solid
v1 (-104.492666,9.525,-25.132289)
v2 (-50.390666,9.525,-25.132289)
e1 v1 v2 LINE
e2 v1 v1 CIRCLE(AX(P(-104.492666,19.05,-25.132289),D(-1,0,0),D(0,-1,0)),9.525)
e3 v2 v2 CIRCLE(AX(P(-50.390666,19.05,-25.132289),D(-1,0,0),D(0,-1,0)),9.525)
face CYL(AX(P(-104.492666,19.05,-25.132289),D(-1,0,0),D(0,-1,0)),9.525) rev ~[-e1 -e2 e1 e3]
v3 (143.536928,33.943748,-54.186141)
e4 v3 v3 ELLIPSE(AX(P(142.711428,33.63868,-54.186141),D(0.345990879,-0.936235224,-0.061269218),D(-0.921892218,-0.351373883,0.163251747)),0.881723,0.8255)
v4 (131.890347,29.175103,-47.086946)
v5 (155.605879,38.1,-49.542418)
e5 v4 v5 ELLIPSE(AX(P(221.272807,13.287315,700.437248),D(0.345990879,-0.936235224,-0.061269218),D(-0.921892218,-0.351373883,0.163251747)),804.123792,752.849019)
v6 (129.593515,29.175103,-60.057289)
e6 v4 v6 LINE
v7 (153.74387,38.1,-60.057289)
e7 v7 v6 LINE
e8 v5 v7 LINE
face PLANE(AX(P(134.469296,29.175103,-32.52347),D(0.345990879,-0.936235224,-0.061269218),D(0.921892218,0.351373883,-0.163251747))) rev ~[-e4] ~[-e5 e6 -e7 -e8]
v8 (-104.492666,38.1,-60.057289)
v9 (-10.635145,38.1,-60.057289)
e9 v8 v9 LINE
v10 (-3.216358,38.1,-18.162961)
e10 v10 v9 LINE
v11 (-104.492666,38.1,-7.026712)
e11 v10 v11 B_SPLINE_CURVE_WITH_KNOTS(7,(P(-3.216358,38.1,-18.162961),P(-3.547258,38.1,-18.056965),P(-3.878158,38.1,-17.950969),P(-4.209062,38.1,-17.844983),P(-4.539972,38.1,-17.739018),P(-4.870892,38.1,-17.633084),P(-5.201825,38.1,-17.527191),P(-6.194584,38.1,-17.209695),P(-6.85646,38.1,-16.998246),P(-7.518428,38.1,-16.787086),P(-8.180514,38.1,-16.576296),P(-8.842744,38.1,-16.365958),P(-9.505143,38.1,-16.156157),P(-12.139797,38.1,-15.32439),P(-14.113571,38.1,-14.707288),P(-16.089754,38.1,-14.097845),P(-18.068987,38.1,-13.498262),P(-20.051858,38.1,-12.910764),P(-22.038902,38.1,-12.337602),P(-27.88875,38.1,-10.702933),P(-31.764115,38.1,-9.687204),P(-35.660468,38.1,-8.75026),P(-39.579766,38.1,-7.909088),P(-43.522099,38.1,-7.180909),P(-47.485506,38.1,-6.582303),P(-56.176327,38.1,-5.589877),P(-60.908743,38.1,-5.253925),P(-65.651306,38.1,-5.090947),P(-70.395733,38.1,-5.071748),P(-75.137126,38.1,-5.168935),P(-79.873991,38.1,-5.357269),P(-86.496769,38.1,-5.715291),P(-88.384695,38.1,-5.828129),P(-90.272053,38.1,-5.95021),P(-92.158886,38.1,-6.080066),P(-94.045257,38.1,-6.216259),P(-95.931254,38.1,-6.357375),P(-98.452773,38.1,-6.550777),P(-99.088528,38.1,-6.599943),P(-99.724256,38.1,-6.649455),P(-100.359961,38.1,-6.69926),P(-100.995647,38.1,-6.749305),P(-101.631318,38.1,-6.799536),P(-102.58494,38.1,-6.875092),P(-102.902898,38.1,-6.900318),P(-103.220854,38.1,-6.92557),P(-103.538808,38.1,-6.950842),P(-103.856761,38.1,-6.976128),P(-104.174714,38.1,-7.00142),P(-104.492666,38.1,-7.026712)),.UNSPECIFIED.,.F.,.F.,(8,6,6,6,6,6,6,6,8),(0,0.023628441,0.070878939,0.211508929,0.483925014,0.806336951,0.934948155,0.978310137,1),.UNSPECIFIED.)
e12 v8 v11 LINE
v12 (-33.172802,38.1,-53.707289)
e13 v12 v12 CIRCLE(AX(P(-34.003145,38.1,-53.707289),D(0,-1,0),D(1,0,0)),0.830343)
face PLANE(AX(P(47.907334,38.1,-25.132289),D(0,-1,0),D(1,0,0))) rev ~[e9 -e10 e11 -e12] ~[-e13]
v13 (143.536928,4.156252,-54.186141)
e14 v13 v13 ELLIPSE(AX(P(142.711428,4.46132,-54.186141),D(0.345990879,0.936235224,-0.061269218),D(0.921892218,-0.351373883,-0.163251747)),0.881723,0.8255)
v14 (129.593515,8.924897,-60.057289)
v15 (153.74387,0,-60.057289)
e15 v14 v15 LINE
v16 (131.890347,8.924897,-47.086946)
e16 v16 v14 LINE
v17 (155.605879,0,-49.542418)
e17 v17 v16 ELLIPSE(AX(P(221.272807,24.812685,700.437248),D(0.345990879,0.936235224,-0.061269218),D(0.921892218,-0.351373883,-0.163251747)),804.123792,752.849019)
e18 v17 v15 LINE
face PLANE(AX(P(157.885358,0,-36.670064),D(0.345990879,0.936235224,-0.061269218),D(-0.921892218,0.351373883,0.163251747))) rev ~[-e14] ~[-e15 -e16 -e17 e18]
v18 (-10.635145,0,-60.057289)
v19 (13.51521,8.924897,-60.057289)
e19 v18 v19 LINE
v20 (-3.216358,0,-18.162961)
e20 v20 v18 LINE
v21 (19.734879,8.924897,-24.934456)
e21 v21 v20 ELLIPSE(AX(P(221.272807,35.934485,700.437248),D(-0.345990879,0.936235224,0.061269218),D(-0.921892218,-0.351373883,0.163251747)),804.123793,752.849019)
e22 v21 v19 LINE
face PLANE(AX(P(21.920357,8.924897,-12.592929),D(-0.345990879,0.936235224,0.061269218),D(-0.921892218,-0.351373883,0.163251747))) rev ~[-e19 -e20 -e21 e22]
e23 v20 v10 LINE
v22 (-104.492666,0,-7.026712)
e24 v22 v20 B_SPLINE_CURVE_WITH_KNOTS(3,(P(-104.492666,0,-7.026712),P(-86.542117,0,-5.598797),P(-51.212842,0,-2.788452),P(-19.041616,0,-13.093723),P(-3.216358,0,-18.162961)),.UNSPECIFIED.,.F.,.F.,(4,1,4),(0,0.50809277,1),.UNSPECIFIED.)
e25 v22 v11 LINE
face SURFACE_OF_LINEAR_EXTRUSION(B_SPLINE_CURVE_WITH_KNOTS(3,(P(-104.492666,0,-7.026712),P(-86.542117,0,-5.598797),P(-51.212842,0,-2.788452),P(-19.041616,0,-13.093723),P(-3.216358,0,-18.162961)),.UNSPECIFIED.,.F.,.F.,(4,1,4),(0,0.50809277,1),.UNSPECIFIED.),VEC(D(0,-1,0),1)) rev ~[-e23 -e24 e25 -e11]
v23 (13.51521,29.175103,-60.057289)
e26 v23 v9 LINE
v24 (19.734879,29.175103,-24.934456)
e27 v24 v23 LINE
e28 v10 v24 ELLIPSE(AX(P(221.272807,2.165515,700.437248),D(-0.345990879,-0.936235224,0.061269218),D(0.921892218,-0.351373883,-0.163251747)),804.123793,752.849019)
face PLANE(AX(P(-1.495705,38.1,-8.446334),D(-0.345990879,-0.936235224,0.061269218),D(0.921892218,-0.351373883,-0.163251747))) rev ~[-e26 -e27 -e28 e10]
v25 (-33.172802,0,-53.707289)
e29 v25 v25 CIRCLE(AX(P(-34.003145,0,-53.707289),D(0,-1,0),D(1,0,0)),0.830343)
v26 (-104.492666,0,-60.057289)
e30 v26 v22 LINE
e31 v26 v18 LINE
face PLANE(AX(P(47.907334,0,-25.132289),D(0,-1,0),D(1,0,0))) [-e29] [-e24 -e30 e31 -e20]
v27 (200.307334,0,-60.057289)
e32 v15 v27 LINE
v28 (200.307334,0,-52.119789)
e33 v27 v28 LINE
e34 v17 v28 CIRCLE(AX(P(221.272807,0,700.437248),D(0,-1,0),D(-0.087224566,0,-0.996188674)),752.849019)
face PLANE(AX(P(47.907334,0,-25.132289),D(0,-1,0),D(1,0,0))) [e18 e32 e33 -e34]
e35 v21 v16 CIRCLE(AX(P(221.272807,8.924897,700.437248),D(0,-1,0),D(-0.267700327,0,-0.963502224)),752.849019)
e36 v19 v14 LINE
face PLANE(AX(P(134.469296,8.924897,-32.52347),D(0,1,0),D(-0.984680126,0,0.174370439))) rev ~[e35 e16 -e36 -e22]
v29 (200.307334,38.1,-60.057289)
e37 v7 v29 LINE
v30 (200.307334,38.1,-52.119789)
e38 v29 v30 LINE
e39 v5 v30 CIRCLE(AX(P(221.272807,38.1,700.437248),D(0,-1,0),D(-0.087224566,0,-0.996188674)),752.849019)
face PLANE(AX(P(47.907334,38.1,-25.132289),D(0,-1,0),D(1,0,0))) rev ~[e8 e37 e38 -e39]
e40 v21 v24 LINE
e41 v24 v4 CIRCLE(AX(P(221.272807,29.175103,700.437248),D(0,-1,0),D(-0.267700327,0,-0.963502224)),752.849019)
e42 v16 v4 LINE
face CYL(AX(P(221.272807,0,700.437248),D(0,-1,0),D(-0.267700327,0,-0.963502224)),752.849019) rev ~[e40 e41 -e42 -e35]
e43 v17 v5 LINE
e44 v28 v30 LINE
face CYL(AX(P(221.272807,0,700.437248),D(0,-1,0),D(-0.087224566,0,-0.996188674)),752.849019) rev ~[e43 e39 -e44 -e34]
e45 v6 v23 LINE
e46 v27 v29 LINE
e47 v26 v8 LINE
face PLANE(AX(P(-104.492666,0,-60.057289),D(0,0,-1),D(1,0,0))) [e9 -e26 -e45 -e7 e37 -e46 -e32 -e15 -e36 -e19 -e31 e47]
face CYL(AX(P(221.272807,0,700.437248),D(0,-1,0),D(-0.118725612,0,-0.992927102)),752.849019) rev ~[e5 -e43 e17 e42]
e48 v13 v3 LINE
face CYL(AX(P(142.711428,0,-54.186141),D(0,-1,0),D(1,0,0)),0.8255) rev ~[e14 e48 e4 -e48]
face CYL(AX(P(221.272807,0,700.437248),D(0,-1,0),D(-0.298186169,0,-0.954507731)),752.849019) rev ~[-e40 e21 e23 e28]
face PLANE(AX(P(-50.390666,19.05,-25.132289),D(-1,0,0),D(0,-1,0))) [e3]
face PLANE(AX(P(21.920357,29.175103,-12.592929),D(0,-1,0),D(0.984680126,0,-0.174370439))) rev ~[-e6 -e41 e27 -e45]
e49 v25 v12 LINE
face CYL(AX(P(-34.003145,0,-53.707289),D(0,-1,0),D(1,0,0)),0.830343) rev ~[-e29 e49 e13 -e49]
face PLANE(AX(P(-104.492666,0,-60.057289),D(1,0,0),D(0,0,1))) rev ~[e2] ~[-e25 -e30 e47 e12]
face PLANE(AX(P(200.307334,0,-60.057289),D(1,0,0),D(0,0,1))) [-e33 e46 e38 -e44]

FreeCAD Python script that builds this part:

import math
import FreeCAD as App
import Part
import Sketcher
Q = App.Units.Quantity


def add_polygon(sketch, points):
    """Adds a closed chain of lines whose ends are joined by coincident constraints."""
    first, n = sketch.GeometryCount, len(points)
    for a, b in zip(points, points[1:] + points[:1]):
        sketch.addGeometry(Part.LineSegment(App.Vector(*a, 0), App.Vector(*b, 0)), False)
    for i in range(n):
        sketch.addConstraint(Sketcher.Constraint("Coincident", first + i, 2, first + (i + 1) % n, 1))

doc = App.newDocument("Part")
body = doc.addObject("PartDesign::Body", "Body")

# Sketch on XZ plane
sketch1 = body.newObject("Sketcher::SketchObject", "Sketch")
sketch1.AttachmentSupport = (doc.getObject("XZ_Plane"), [""])
sketch1.MapMode = "FlatFace"
add_polygon(sketch1, [(-104, 10), (-104, -60), (200, -60), (200, 10)])  # lines 0-3
sketch1.addConstraint(Sketcher.Constraint("Vertical", 0))
sketch1.addConstraint(Sketcher.Constraint("Horizontal", 1))
sketch1.addConstraint(Sketcher.Constraint("Vertical", 2))
sketch1.addConstraint(Sketcher.Constraint("Horizontal", 3))
sketch1.addConstraint(Sketcher.Constraint("DistanceX", 1, 1, 1, 2, Q("12 in")))
sketch1.addConstraint(Sketcher.Constraint("DistanceY", 0, 2, 0, 1, Q("2.75 in")))
sketch1.addConstraint(Sketcher.Constraint("DistanceY", 0, 2, -1, 1, 60.057289))
sketch1.addConstraint(Sketcher.Constraint("DistanceX", 0, 2, -1, 1, 104.492666))
pad1 = body.newObject("PartDesign::Pad", "Pad")
pad1.Profile = sketch1
pad1.Length = Q("1.5 in")
pad1.Reversed = True

# Sketch on XZ plane
sketch2 = body.newObject("Sketcher::SketchObject", "Sketch001")
sketch2.AttachmentSupport = (doc.getObject("XZ_Plane"), [""])
sketch2.MapMode = "FlatFace"
add_polygon(sketch2, [(200, 10), (-104, 10), (200, -44)])  # lines 0-2
sketch2.addConstraint(Sketcher.Constraint("Horizontal", 0))
sketch2.addConstraint(Sketcher.Constraint("Vertical", 2))
sketch2.addConstraint(Sketcher.Constraint("DistanceX", 0, 2, 0, 1, Q("12 in")))
sketch2.addConstraint(Sketcher.Constraint("DistanceY", 2, 1, 2, 2, Q("2.125 in")))
sketch2.addConstraint(Sketcher.Constraint("DistanceY", -1, 1, 0, 2, 9.792711))
sketch2.addConstraint(Sketcher.Constraint("DistanceX", 0, 2, -1, 1, 104.492666))
pocket1 = body.newObject("PartDesign::Pocket", "Pocket")
pocket1.Profile = sketch2
pocket1.Length = Q("2 in")

# Sketch on YZ plane
sketch3 = body.newObject("Sketcher::SketchObject", "Sketch002")
sketch3.AttachmentSupport = (doc.getObject("YZ_Plane"), [""])
sketch3.MapMode = "FlatFace"
sketch3.AttachmentOffset = App.Placement(App.Vector(0, 0, -104.492666), App.Rotation())
sketch3.addGeometry(Part.Circle(App.Vector(19, -25, 0), App.Vector(0, 0, 1), 10), False)
sketch3.addConstraint(Sketcher.Constraint("Diameter", 0, Q("0.75 in")))
sketch3.addConstraint(Sketcher.Constraint("DistanceX", -1, 1, 0, 3, Q("0.75 in")))
sketch3.addConstraint(Sketcher.Constraint("DistanceY", 0, 3, -1, 1, 25.132289))
pocket2 = body.newObject("PartDesign::Pocket", "Pocket001")
pocket2.Profile = sketch3
pocket2.Length = Q("2.13 in")
pocket2.Reversed = True

# Sketch on an angled plane
sketch4 = body.newObject("Sketcher::SketchObject", "Sketch003")
sketch4.Placement = App.Placement(App.Vector(-1.495705, 0, -8.446334), App.Rotation(App.Vector(0.984680126, 0, -0.174370439), App.Vector(0, 1.000000001, 0), App.Vector(0.174370439, 0, 0.984680126), "ZXY"))
add_polygon(sketch4, [(162, 38), (0, 38), (24, 29), (138, 29)])  # lines 0-3
add_polygon(sketch4, [(24, 9), (0, 0), (162, 0), (138, 9)])  # lines 4-7
sketch4.addConstraint(Sketcher.Constraint("Horizontal", 0))
sketch4.addConstraint(Sketcher.Constraint("Horizontal", 2))
sketch4.addConstraint(Sketcher.Constraint("Horizontal", 5))
sketch4.addConstraint(Sketcher.Constraint("Horizontal", 7))
sketch4.addConstraint(Sketcher.Constraint("Coincident", 4, 2, -1, 1))
sketch4.addConstraint(Sketcher.Constraint("PointOnObject", 0, 2, -2))
sketch4.addConstraint(Sketcher.Constraint("Parallel", 3, 4))
sketch4.addConstraint(Sketcher.Constraint("Parallel", 1, 6))
sketch4.addConstraint(Sketcher.Constraint("Vertical", 3, 2, 5, 2))
sketch4.addConstraint(Sketcher.Constraint("Vertical", 2, 2, 6, 2))
sketch4.addConstraint(Sketcher.Constraint("Vertical", 1, 2, 7, 2))
sketch4.addConstraint(Sketcher.Constraint("Distance", 1, Q("1 in")))
sketch4.addConstraint(Sketcher.Constraint("DistanceX", 2, 1, 2, 2, Q("4.5 in")))
sketch4.addConstraint(Sketcher.Constraint("DistanceY", -1, 1, 0, 2, Q("1.5 in")))
sketch4.addConstraint(Sketcher.Constraint("DistanceX", 0, 2, 0, 1, 161.860749))
pocket3 = body.newObject("PartDesign::Pocket", "Pocket002")
pocket3.Profile = sketch4
pocket3.Length = Q("5 in")

# Sketch on XZ plane
sketch5 = body.newObject("Sketcher::SketchObject", "Sketch004")
sketch5.AttachmentSupport = (doc.getObject("XZ_Plane"), [""])
sketch5.MapMode = "FlatFace"
sketch5.addGeometry(Part.LineSegment(App.Vector(-104.492666, 9.792711, 0), App.Vector(-104.492666, -7.026712, 0)), False)
sketch5.addGeometry(Part.BSplineCurve([App.Vector(-104.492666, -7.026712, 0), App.Vector(-86.542117, -5.598797, 0), App.Vector(-51.212842, -2.788452, 0), App.Vector(-19.041616, -13.093723, 0), App.Vector(-3.216358, -18.162961, 0)], [4, 1, 4], [0, 0.50809277, 1], False, 3, [1, 1, 1, 1, 1], False), False)
sketch5.addGeometry(Part.ArcOfCircle(Part.Circle(App.Vector(221.272807, 700.437248, 0), App.Vector(0, 0, 1), 752.849019), math.radians(-107.348693), math.radians(-105.527469)), False)
sketch5.addGeometry(Part.ArcOfCircle(Part.Circle(App.Vector(221.272807, 700.437248, 0), App.Vector(0, 0, 1), 752.849019), math.radians(-105.527469), math.radians(-96.81856)), False)
sketch5.addGeometry(Part.ArcOfCircle(Part.Circle(App.Vector(221.272807, 700.437248, 0), App.Vector(0, 0, 1), 752.849019), math.radians(-96.81856), math.radians(-95.003958)), False)
sketch5.addGeometry(Part.ArcOfCircle(Part.Circle(App.Vector(221.272807, 700.437248, 0), App.Vector(0, 0, 1), 752.849019), math.radians(-95.003958), math.radians(-91.595789)), False)
sketch5.addGeometry(Part.LineSegment(App.Vector(200.307334, -52.119789, 0), App.Vector(200.307334, -44.182289, 0)), False)
sketch5.addGeometry(Part.LineSegment(App.Vector(200.307334, -44.182289, 0), App.Vector(157.885358, -36.670064, 0)), False)
sketch5.addGeometry(Part.LineSegment(App.Vector(157.885358, -36.670064, 0), App.Vector(134.469296, -32.52347, 0)), False)
sketch5.addGeometry(Part.LineSegment(App.Vector(134.469296, -32.52347, 0), App.Vector(21.920357, -12.592929, 0)), False)
sketch5.addGeometry(Part.LineSegment(App.Vector(21.920357, -12.592929, 0), App.Vector(-1.495705, -8.446334, 0)), False)
sketch5.addGeometry(Part.LineSegment(App.Vector(-1.495705, -8.446334, 0), App.Vector(-104.492666, 9.792711, 0)), False)
sketch5.addConstraint(Sketcher.Constraint("Block", 1))
sketch5.addConstraint(Sketcher.Constraint("Coincident", 0, 2, 1, 1))
sketch5.addConstraint(Sketcher.Constraint("Coincident", 1, 2, 2, 1))
sketch5.addConstraint(Sketcher.Constraint("Coincident", 2, 2, 3, 1))
sketch5.addConstraint(Sketcher.Constraint("Coincident", 3, 2, 4, 1))
sketch5.addConstraint(Sketcher.Constraint("Coincident", 4, 2, 5, 1))
sketch5.addConstraint(Sketcher.Constraint("Coincident", 5, 2, 6, 1))
sketch5.addConstraint(Sketcher.Constraint("Coincident", 6, 2, 7, 1))
sketch5.addConstraint(Sketcher.Constraint("Coincident", 7, 2, 8, 1))
sketch5.addConstraint(Sketcher.Constraint("Coincident", 8, 2, 9, 1))
sketch5.addConstraint(Sketcher.Constraint("Coincident", 9, 2, 10, 1))
sketch5.addConstraint(Sketcher.Constraint("Coincident", 10, 2, 11, 1))
sketch5.addConstraint(Sketcher.Constraint("Coincident", 11, 2, 0, 1))
sketch5.addConstraint(Sketcher.Constraint("Vertical", 0))
sketch5.addConstraint(Sketcher.Constraint("Vertical", 6))
sketch5.addConstraint(Sketcher.Constraint("Coincident", 3, 3, 2, 3))
sketch5.addConstraint(Sketcher.Constraint("Coincident", 4, 3, 2, 3))
sketch5.addConstraint(Sketcher.Constraint("Coincident", 5, 3, 2, 3))
sketch5.addConstraint(Sketcher.Constraint("DistanceX", 0, 2, 6, 2, Q("12 in")))
sketch5.addConstraint(Sketcher.Constraint("Distance", 9, Q("4.5 in")))
sketch5.addConstraint(Sketcher.Constraint("DistanceY", 6, 1, 6, 2, Q("0.3125 in")))
sketch5.addConstraint(Sketcher.Constraint("Radius", 2, 752.849019))
sketch5.addConstraint(Sketcher.Constraint("DistanceX", 0, 2, 4, 2, Q("10.2401002 in")))
sketch5.addConstraint(Sketcher.Constraint("DistanceX", 2, 2, 4, 2, 135.871))
sketch5.addConstraint(Sketcher.Constraint("DistanceX", 9, 2, 7, 2, 135.965001))
sketch5.addConstraint(Sketcher.Constraint("DistanceX", 10, 2, 8, 2, 135.965001))
sketch5.addConstraint(Sketcher.Constraint("Distance", 11, 104.599411))
sketch5.addConstraint(Sketcher.Constraint("DistanceY", 0, 2, 0, 1, 16.819423))
sketch5.addConstraint(Sketcher.Constraint("DistanceY", -1, 1, 2, 3, 700.437248))
sketch5.addConstraint(Sketcher.Constraint("DistanceX", -1, 1, 7, 2, 157.885358))
sketch5.addConstraint(Sketcher.Constraint("DistanceY", 8, 2, -1, 1, 32.52347))
sketch5.addConstraint(Sketcher.Constraint("DistanceY", 9, 2, -1, 1, 12.592929))
sketch5.addConstraint(Sketcher.Constraint("DistanceX", 2, 2, 3, 2, 112.155468))
sketch5.addConstraint(Sketcher.Constraint("DistanceY", 3, 2, 7, 2, 10.416882))
pocket4 = body.newObject("PartDesign::Pocket", "Pocket003")
pocket4.Profile = sketch5
pocket4.Length = Q("3 in")

# Sketch on XZ plane
sketch6 = body.newObject("Sketcher::SketchObject", "Sketch005")
sketch6.AttachmentSupport = (doc.getObject("XZ_Plane"), [""])
sketch6.MapMode = "FlatFace"
sketch6.addGeometry(Part.Circle(App.Vector(142.7, -54.2, 0), App.Vector(0, 0, 1), 0.8), False)
sketch6.addConstraint(Sketcher.Constraint("Diameter", 0, Q("0.065 in")))
sketch6.addConstraint(Sketcher.Constraint("DistanceY", 0, 3, -1, 1, 54.186141))
sketch6.addConstraint(Sketcher.Constraint("DistanceX", -1, 1, 0, 3, 142.711428))
pocket5 = body.newObject("PartDesign::Pocket", "Pocket004")
pocket5.Profile = sketch6
pocket5.Length = Q("3 in")

# Sketch on XZ plane
sketch7 = body.newObject("Sketcher::SketchObject", "Sketch006")
sketch7.AttachmentSupport = (doc.getObject("XZ_Plane"), [""])
sketch7.MapMode = "FlatFace"
sketch7.addGeometry(Part.Circle(App.Vector(-34, -53.7, 0), App.Vector(0, 0, 1), 0.8), False)
sketch7.addConstraint(Sketcher.Constraint("Diameter", 0, 1.660686))
sketch7.addConstraint(Sketcher.Constraint("DistanceY", 0, 3, -1, 1, 53.707289))
sketch7.addConstraint(Sketcher.Constraint("DistanceX", 0, 3, -1, 1, 34.003145))
pocket6 = body.newObject("PartDesign::Pocket", "Pocket005")
pocket6.Profile = sketch7
pocket6.Length = Q("3 in")

doc.recompute()
